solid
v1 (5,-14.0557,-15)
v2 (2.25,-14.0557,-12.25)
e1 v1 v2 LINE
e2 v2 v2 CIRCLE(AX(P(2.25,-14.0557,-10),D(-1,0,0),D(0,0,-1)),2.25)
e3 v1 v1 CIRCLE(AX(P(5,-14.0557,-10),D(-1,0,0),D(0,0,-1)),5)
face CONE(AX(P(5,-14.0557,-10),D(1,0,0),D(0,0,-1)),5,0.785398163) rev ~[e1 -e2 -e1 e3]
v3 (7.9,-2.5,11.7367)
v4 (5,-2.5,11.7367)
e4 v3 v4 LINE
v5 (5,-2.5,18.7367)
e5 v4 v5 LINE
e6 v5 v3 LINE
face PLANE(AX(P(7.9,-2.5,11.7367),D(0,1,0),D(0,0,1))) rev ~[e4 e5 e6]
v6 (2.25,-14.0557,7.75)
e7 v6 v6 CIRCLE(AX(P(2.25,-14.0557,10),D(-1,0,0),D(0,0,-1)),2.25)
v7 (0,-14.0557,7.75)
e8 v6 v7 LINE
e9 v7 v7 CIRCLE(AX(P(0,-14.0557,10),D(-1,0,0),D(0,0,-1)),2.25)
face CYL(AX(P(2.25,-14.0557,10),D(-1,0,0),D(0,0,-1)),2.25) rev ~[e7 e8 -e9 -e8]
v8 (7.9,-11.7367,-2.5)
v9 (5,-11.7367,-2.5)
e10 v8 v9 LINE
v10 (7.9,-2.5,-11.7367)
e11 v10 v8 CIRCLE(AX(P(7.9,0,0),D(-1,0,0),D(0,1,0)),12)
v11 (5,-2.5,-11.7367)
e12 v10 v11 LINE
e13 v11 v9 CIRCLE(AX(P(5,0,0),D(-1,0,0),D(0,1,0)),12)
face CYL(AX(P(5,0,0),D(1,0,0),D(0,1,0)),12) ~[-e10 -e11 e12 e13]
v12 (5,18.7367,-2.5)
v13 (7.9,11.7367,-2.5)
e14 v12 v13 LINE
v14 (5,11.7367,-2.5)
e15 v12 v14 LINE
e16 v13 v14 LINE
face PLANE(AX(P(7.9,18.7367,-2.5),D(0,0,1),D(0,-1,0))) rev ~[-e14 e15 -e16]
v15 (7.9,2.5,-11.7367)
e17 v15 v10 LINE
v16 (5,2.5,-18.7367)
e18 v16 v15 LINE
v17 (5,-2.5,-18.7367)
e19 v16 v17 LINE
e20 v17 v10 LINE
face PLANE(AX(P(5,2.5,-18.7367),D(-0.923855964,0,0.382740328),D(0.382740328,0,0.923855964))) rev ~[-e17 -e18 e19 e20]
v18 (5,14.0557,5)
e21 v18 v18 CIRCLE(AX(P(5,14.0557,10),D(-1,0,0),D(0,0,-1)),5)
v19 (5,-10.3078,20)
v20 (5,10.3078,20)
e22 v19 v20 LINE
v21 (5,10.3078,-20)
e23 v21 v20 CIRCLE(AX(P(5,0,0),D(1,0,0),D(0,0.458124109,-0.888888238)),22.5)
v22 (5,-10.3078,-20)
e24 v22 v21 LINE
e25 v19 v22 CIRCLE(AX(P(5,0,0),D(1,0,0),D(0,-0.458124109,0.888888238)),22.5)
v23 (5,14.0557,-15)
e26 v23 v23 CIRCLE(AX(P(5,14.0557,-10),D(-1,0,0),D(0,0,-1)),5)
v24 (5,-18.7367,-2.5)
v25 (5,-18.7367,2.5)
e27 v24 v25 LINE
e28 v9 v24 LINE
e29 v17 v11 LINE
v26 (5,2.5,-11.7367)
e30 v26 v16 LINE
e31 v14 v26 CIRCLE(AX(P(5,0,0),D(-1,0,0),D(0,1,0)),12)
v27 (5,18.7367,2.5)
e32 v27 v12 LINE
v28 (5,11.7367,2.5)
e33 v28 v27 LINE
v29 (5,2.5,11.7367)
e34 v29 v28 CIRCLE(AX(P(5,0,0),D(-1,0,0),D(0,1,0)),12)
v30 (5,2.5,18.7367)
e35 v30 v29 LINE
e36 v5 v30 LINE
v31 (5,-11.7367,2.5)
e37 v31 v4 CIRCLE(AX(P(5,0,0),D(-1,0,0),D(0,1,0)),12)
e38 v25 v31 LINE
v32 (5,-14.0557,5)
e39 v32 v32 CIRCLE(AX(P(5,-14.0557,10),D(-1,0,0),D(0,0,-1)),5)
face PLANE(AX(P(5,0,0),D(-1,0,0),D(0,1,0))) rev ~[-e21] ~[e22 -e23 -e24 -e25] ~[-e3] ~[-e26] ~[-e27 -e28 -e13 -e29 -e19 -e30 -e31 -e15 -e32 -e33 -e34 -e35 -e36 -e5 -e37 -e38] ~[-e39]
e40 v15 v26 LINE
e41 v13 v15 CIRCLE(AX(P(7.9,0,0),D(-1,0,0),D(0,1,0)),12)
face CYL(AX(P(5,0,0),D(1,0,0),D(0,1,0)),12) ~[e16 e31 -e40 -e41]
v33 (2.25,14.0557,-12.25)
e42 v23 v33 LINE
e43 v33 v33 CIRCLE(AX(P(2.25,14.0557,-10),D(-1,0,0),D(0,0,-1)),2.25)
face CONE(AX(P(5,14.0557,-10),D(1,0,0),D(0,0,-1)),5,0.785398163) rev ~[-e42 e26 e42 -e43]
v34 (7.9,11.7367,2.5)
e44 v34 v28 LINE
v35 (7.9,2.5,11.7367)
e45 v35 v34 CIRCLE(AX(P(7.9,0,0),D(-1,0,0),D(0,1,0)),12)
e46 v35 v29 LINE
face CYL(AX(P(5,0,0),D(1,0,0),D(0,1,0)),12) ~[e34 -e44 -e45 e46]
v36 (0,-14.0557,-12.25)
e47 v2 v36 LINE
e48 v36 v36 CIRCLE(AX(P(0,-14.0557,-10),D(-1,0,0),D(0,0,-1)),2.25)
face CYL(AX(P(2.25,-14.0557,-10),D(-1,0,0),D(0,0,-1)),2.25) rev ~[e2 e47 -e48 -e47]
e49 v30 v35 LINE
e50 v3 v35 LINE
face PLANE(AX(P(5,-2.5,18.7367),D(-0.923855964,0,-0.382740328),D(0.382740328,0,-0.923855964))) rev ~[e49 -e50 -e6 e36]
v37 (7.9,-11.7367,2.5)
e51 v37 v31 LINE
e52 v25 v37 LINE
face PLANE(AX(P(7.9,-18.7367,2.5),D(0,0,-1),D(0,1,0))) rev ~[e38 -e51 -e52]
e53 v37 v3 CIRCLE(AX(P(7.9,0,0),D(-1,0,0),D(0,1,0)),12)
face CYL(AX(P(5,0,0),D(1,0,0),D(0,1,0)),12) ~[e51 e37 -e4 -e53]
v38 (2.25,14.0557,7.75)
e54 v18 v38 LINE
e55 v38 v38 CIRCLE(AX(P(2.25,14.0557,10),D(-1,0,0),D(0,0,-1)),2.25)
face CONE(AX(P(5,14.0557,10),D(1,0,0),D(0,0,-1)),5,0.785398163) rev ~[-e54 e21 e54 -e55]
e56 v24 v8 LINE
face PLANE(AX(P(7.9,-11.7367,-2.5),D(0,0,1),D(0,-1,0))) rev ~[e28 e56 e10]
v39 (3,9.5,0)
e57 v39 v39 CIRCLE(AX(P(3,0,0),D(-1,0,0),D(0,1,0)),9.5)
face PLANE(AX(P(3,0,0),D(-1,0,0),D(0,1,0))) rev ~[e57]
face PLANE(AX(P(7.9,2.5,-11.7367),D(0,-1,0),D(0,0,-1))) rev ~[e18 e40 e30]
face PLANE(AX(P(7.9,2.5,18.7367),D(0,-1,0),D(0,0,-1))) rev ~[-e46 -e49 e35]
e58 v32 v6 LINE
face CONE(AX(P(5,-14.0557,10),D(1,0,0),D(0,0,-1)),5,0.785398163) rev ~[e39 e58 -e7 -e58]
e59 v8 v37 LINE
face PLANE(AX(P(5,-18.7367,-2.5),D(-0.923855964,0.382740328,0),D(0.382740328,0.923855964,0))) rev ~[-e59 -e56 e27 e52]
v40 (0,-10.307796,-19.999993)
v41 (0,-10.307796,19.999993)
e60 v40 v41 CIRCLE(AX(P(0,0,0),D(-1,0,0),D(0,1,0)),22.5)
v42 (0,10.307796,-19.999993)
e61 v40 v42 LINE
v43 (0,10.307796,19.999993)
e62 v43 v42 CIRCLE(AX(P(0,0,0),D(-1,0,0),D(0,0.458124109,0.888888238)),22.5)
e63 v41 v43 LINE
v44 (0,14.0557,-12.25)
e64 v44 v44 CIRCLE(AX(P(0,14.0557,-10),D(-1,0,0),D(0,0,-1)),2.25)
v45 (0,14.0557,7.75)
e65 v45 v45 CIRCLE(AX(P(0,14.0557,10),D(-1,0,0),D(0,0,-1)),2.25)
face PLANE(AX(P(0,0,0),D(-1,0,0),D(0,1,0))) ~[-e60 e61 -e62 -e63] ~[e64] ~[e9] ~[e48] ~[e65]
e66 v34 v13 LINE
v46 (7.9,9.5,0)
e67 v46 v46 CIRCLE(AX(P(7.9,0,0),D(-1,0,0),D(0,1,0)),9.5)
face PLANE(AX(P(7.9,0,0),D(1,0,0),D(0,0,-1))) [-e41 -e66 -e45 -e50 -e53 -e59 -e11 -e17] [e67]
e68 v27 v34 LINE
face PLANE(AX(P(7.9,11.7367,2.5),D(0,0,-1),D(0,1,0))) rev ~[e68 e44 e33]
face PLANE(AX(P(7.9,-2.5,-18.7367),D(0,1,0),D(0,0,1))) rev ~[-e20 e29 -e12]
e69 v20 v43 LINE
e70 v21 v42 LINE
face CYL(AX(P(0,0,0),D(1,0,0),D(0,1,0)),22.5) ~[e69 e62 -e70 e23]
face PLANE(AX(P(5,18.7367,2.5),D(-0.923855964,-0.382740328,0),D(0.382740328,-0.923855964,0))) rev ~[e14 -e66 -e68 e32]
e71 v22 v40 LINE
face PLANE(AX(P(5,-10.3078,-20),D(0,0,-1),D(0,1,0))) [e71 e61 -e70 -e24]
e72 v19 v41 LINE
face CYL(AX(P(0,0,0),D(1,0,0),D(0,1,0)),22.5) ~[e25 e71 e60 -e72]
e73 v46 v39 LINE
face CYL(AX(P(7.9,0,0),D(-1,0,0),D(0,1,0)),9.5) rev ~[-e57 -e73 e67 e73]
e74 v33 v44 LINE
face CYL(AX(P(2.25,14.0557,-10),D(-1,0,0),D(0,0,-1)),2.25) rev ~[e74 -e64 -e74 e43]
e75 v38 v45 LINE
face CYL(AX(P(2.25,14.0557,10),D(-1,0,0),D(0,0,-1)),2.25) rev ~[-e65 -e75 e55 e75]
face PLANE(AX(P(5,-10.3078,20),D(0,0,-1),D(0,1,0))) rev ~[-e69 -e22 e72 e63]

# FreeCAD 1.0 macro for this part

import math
import FreeCAD as App
import Part
import Sketcher

V = App.Vector

doc = App.newDocument("Part")
body = doc.addObject("PartDesign::Body", "Body")

sketch1 = doc.addObject("Sketcher::SketchObject", "Sketch")
body.addObject(sketch1)
sketch1.AttachmentSupport = (doc.XY_Plane, [""])
sketch1.MapMode = "FlatFace"
sketch1.addGeometry([
    Part.LineSegment(V(0, 22.5, 0), V(0, 0, 0)),
    Part.LineSegment(V(0, 0, 0), V(3, 0, 0)),
    Part.LineSegment(V(3, 0, 0), V(3, 9.5, 0)),
    Part.LineSegment(V(3, 9.5, 0), V(7.9, 9.5, 0)),
    Part.LineSegment(V(7.9, 9.5, 0), V(7.9, 12, 0)),
    Part.LineSegment(V(7.9, 12, 0), V(5, 12, 0)),
    Part.LineSegment(V(5, 12, 0), V(5, 22.5, 0)),
    Part.LineSegment(V(5, 22.5, 0), V(0, 22.5, 0)),
], False)
sketch1.addConstraint([
    Sketcher.Constraint("Coincident", 0, 2, 1, 1),
    Sketcher.Constraint("Coincident", 1, 2, 2, 1),
    Sketcher.Constraint("Coincident", 2, 2, 3, 1),
    Sketcher.Constraint("Coincident", 3, 2, 4, 1),
    Sketcher.Constraint("Coincident", 4, 2, 5, 1),
    Sketcher.Constraint("Coincident", 5, 2, 6, 1),
    Sketcher.Constraint("Coincident", 6, 2, 7, 1),
    Sketcher.Constraint("Coincident", 7, 2, 0, 1),
    Sketcher.Constraint("Vertical", 0),
    Sketcher.Constraint("Horizontal", 1),
    Sketcher.Constraint("Vertical", 2),
    Sketcher.Constraint("Horizontal", 3),
    Sketcher.Constraint("Vertical", 4),
    Sketcher.Constraint("Horizontal", 5),
    Sketcher.Constraint("Vertical", 6),
    Sketcher.Constraint("Horizontal", 7),
    Sketcher.Constraint("Coincident", 0, 2, -1, 1),
    Sketcher.Constraint("DistanceX", 1, 1, 1, 2, 3.0),
    Sketcher.Constraint("DistanceX", 7, 2, 7, 1, 5.0),
    Sketcher.Constraint("DistanceY", 4, 1, 4, 2, 2.5),
    Sketcher.Constraint("DistanceX", 3, 1, 3, 2, 4.9),
    Sketcher.Constraint("DistanceY", 0, 2, 0, 1, 22.5),
    Sketcher.Constraint("DistanceY", 2, 1, 2, 2, 9.5),
])
revolution = doc.addObject("PartDesign::Revolution", "Revolution")
body.addObject(revolution)
revolution.Profile = sketch1
revolution.ReferenceAxis = (sketch1, ["H_Axis"])
revolution.Angle = 360

sketch2 = doc.addObject("Sketcher::SketchObject", "Sketch001")
body.addObject(sketch2)
sketch2.AttachmentSupport = (doc.YZ_Plane, [""])
sketch2.MapMode = "FlatFace"
sketch2.AttachmentOffset = App.Placement(V(0, 0, 5), App.Rotation())
sketch2.addGeometry([
    Part.Circle(V(14.0557, 10, 0), V(0, 0, 1), 2.25),
    Part.Circle(V(14.0557, -10, 0), V(0, 0, 1), 2.25),
    Part.Circle(V(-14.0557, 10, 0), V(0, 0, 1), 2.25),
    Part.Circle(V(-14.0557, -10, 0), V(0, 0, 1), 2.25),
], False)
sketch2.addConstraint([
    Sketcher.Constraint("Equal", 0, 1),
    Sketcher.Constraint("Equal", 1, 2),
    Sketcher.Constraint("Equal", 2, 3),
    Sketcher.Constraint("Symmetric", 1, 3, 2, 3, -1, 1),
    Sketcher.Constraint("Symmetric", 0, 3, 3, 3, -1, 1),
    Sketcher.Constraint("Symmetric", 0, 3, 2, 3, -2),
    Sketcher.Constraint("Diameter", 0, 4.5),
    Sketcher.Constraint("DistanceY", -1, 1, 0, 3, 10.0),
    Sketcher.Constraint("DistanceX", -1, 1, 0, 3, 14.0557),
])
doc.recompute()
hole = doc.addObject("PartDesign::Hole", "Hole")
body.addObject(hole)
hole.Profile = sketch2
hole.ThreadType = "None"
hole.Diameter = 4.5
hole.DepthType = "ThroughAll"
hole.HoleCutType = "Countersink"
hole.HoleCutDiameter = 10
hole.HoleCutCountersinkAngle = 90

sketch3 = doc.addObject("Sketcher::SketchObject", "Sketch002")
body.addObject(sketch3)
sketch3.AttachmentSupport = (doc.YZ_Plane, [""])
sketch3.MapMode = "FlatFace"
sketch3.AttachmentOffset = App.Placement(V(0, 0, 5), App.Rotation())
sketch3.addGeometry([
    Part.ArcOfCircle(Part.Circle(V(0, 0, 0), V(0, 0, 1), 22.5), math.radians(-117.266126), math.radians(-62.733874)),
    Part.LineSegment(V(-10.3078, -20, 0), V(10.3078, -20, 0)),
    Part.LineSegment(V(-10.3078, 20, 0), V(10.3078, 20, 0)),
    Part.ArcOfCircle(Part.Circle(V(0, 0, 0), V(0, 0, 1), 22.5), math.radians(62.733874), math.radians(117.266126)),
], False)
sketch3.addConstraint([
    Sketcher.Constraint("Coincident", 0, 1, 1, 1),
    Sketcher.Constraint("Coincident", 1, 2, 0, 2),
    Sketcher.Constraint("Coincident", 2, 1, 3, 2),
    Sketcher.Constraint("Coincident", 3, 1, 2, 2),
    Sketcher.Constraint("Horizontal", 1),
    Sketcher.Constraint("Horizontal", 2),
    Sketcher.Constraint("Coincident", 0, 3, -1, 1),
    Sketcher.Constraint("Coincident", 3, 3, -1, 1),
    Sketcher.Constraint("Equal", 0, 3),
    Sketcher.Constraint("Vertical", 0, 1, 2, 1),
    Sketcher.Constraint("DistanceY", 0, 1, 2, 1, 40.0),
    Sketcher.Constraint("Radius", 0, 22.5),
])
pocket1 = doc.addObject("PartDesign::Pocket", "Pocket")
body.addObject(pocket1)
pocket1.Profile = sketch3
pocket1.Type = "ThroughAll"

sketch4 = doc.addObject("Sketcher::SketchObject", "Sketch003")
body.addObject(sketch4)
sketch4.AttachmentSupport = (doc.YZ_Plane, [""])
sketch4.MapMode = "FlatFace"
sketch4.AttachmentOffset = App.Placement(V(0, 0, 7.9), App.Rotation())
sketch4.addGeometry([
    Part.LineSegment(V(18.7367, -2.5, 0), V(18.7367, 2.5, 0)),
    Part.LineSegment(V(18.7367, 2.5, 0), V(11.7367, 2.5, 0)),
    Part.ArcOfCircle(Part.Circle(V(0, 0, 0), V(0, 0, 1), 12), math.radians(-12.024694), math.radians(12.024694)),
    Part.LineSegment(V(11.7367, -2.5, 0), V(18.7367, -2.5, 0)),
], False)
sketch4.addConstraint([
    Sketcher.Constraint("Coincident", 0, 2, 1, 1),
    Sketcher.Constraint("Coincident", 1, 2, 2, 2),
    Sketcher.Constraint("Coincident", 2, 1, 3, 1),
    Sketcher.Constraint("Coincident", 3, 2, 0, 1),
    Sketcher.Constraint("Vertical", 0),
    Sketcher.Constraint("Horizontal", 1),
    Sketcher.Constraint("Horizontal", 3),
    Sketcher.Constraint("Coincident", 2, 3, -1, 1),
    Sketcher.Constraint("Vertical", 1, 2, 2, 1),
    Sketcher.Constraint("DistanceX", 1, 2, 1, 1, 7.0),
    Sketcher.Constraint("DistanceY", 0, 1, 0, 2, 5.0),
    Sketcher.Constraint("Radius", 2, 12.0),
])
pad1 = doc.addObject("PartDesign::Pad", "Pad")
body.addObject(pad1)
pad1.Profile = sketch4
pad1.Length = 2.9
pad1.Reversed = True

sketch5 = doc.addObject("Sketcher::SketchObject", "Sketch004")
body.addObject(sketch5)
sketch5.AttachmentSupport = (doc.XY_Plane, [""])
sketch5.MapMode = "FlatFace"
sketch5.AttachmentOffset = App.Placement(V(0, 0, 2.5), App.Rotation())
sketch5.addGeometry([
    Part.LineSegment(V(7.9, 11.7367, 0), V(7.9, 18.7367, 0)),
    Part.LineSegment(V(7.9, 18.7367, 0), V(5, 18.7367, 0)),
    Part.LineSegment(V(5, 18.7367, 0), V(7.9, 11.7367, 0)),
], False)
sketch5.addConstraint([
    Sketcher.Constraint("Coincident", 0, 2, 1, 1),
    Sketcher.Constraint("Coincident", 1, 2, 2, 1),
    Sketcher.Constraint("Coincident", 2, 2, 0, 1),
    Sketcher.Constraint("Vertical", 0),
    Sketcher.Constraint("Horizontal", 1),
    Sketcher.Constraint("DistanceY", 0, 1, 0, 2, 7.0),
    Sketcher.Constraint("DistanceX", 1, 2, 1, 1, 2.9),
    Sketcher.Constraint("DistanceX", -1, 1, 1, 2, 5.0),
    Sketcher.Constraint("DistanceY", -1, 1, 0, 2, 18.7367),
])
pocket2 = doc.addObject("PartDesign::Pocket", "Pocket001")
body.addObject(pocket2)
pocket2.Profile = sketch5
pocket2.Type = "ThroughAll"
doc.recompute()

polarpattern = doc.addObject("PartDesign::PolarPattern", "PolarPattern")
body.addObject(polarpattern)
polarpattern.Originals = [pad1, pocket2]
polarpattern.Axis = (doc.X_Axis, [""])
polarpattern.Angle = 360
polarpattern.Occurrences = 4
body.Tip = polarpattern

doc.recompute()
